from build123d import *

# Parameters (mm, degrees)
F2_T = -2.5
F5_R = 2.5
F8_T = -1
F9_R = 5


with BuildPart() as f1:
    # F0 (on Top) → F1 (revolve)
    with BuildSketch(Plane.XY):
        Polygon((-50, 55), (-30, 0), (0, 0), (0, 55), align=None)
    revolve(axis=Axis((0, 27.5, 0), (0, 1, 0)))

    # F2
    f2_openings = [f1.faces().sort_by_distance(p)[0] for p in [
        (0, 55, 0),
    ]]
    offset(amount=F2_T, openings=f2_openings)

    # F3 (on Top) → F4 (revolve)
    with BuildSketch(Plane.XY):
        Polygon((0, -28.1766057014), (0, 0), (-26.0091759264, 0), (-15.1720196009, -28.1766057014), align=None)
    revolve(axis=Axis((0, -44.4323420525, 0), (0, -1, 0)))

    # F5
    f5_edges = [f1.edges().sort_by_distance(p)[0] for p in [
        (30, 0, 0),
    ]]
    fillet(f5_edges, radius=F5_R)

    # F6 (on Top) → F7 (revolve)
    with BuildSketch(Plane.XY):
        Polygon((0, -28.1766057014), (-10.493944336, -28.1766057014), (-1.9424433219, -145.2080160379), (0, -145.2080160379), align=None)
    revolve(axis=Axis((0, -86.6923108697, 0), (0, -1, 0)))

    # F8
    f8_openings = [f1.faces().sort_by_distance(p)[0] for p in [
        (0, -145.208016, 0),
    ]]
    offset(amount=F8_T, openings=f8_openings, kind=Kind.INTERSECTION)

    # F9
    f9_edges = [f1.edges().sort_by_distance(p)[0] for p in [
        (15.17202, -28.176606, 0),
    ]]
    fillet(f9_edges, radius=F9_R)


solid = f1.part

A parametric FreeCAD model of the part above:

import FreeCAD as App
import Part
import Sketcher
from FreeCAD import Vector
Q = App.Units.Quantity


def edges_at(feature, points):
    """Names of the edges that pass closest to the given points."""
    edges = feature.Shape.Edges
    near = lambda p: min(range(len(edges)), key=lambda i: edges[i].distToShape(Part.Vertex(*p))[0])
    return sorted({f"Edge{near(p) + 1}" for p in points})


def faces_at(feature, points):
    """Names of the faces that lie closest to the given points."""
    faces = feature.Shape.Faces
    near = lambda p: min(range(len(faces)), key=lambda i: faces[i].distToShape(Part.Vertex(*p))[0])
    return sorted({f"Face{near(p) + 1}" for p in points})


def add_polygon(sketch, points):
    """Adds a closed chain of lines whose ends are joined by coincident constraints."""
    first, n = sketch.GeometryCount, len(points)
    for a, b in zip(points, points[1:] + points[:1]):
        sketch.addGeometry(Part.LineSegment(App.Vector(*a, 0), App.Vector(*b, 0)), False)
    for i in range(n):
        sketch.addConstraint(Sketcher.Constraint("Coincident", first + i, 2, first + (i + 1) % n, 1))

doc = App.newDocument("Part")
body = doc.addObject("PartDesign::Body", "Body")

sketch1 = doc.addObject("Sketcher::SketchObject", "Sketch")
body.addObject(sketch1)
sketch1.AttachmentSupport = (doc.XY_Plane, [""])
sketch1.MapMode = "FlatFace"
add_polygon(sketch1, [(-50, 55), (-30, 0), (0, 0), (0, 55)])
sketch1.addConstraint([
    Sketcher.Constraint("Horizontal", 1),
    Sketcher.Constraint("Vertical", 2),
    Sketcher.Constraint("Horizontal", 3),
    Sketcher.Constraint("Coincident", 1, 2, -1, 1),
    Sketcher.Constraint("DistanceX", 1, 1, 1, 2, Q("30 mm")),
    Sketcher.Constraint("DistanceX", 3, 2, 3, 1, Q("50 mm")),
    Sketcher.Constraint("DistanceY", 2, 1, 2, 2, Q("55 mm")),
])
revolution = doc.addObject("PartDesign::Revolution", "Revolution")
body.addObject(revolution)
revolution.Profile = sketch1
revolution.ReferenceAxis = (sketch1, ["V_Axis"])
revolution.Angle = 360
doc.recompute()

thickness = doc.addObject("PartDesign::Thickness", "Thickness")
body.addObject(thickness)
thickness.Base = (revolution, faces_at(revolution, [(0, 55, 0)]))
thickness.Value = 2.5
thickness.Reversed = True
thickness.Join = "Arc"

sketch2 = doc.addObject("Sketcher::SketchObject", "Sketch001")
body.addObject(sketch2)
sketch2.AttachmentSupport = (doc.XY_Plane, [""])
sketch2.MapMode = "FlatFace"
add_polygon(sketch2, [(0, -28.176606), (0, 0), (-26.009176, 0), (-15.17202, -28.176606)])
sketch2.addConstraint([
    Sketcher.Constraint("Vertical", 0),
    Sketcher.Constraint("Horizontal", 1),
    Sketcher.Constraint("Horizontal", 3),
    Sketcher.Constraint("Coincident", 0, 2, -1, 1),
    Sketcher.Constraint("DistanceX", 3, 1, 3, 2, Q("15.17202 mm")),
    Sketcher.Constraint("DistanceX", 1, 2, 1, 1, Q("26.009176 mm")),
    Sketcher.Constraint("DistanceY", 0, 1, 0, 2, Q("28.176606 mm")),
])
revolution2 = doc.addObject("PartDesign::Revolution", "Revolution001")
body.addObject(revolution2)
revolution2.Profile = sketch2
revolution2.ReferenceAxis = (sketch2, ["V_Axis"])
revolution2.Angle = 360
doc.recompute()

fillet = doc.addObject("PartDesign::Fillet", "Fillet")
body.addObject(fillet)
fillet.Base = (revolution2, edges_at(revolution2, [(30, 0, 0)]))
fillet.Radius = 2.5

sketch3 = doc.addObject("Sketcher::SketchObject", "Sketch002")
body.addObject(sketch3)
sketch3.AttachmentSupport = (doc.XY_Plane, [""])
sketch3.MapMode = "FlatFace"
add_polygon(sketch3, [(0, -28.176606), (-10.493944, -28.176606), (-1.942443, -145.208016), (0, -145.208016)])
sketch3.addConstraint([
    Sketcher.Constraint("Horizontal", 0),
    Sketcher.Constraint("Horizontal", 2),
    Sketcher.Constraint("Vertical", 3),
    Sketcher.Constraint("PointOnObject", 2, 2, -2),
    Sketcher.Constraint("DistanceY", 3, 1, 3, 2, Q("117.03141 mm")),
    Sketcher.Constraint("DistanceX", 0, 2, 1, 2, Q("8.551501 mm")),
    Sketcher.Constraint("DistanceX", 0, 2, 0, 1, Q("10.493944 mm")),
    Sketcher.Constraint("DistanceY", 0, 2, -1, 1, Q("28.176606 mm")),
])
revolution3 = doc.addObject("PartDesign::Revolution", "Revolution002")
body.addObject(revolution3)
revolution3.Profile = sketch3
revolution3.ReferenceAxis = (sketch3, ["V_Axis"])
revolution3.Angle = 360
doc.recompute()

thickness2 = doc.addObject("PartDesign::Thickness", "Thickness001")
body.addObject(thickness2)
thickness2.Base = (revolution3, faces_at(revolution3, [(0, -145.208, 0)]))
thickness2.Value = 1
thickness2.Reversed = True
thickness2.Join = "Intersection"
doc.recompute()

fillet2 = doc.addObject("PartDesign::Fillet", "Fillet001")
body.addObject(fillet2)
fillet2.Base = (thickness2, edges_at(thickness2, [(15.172, -28.177, 0)]))
fillet2.Radius = 5

doc.recompute()
